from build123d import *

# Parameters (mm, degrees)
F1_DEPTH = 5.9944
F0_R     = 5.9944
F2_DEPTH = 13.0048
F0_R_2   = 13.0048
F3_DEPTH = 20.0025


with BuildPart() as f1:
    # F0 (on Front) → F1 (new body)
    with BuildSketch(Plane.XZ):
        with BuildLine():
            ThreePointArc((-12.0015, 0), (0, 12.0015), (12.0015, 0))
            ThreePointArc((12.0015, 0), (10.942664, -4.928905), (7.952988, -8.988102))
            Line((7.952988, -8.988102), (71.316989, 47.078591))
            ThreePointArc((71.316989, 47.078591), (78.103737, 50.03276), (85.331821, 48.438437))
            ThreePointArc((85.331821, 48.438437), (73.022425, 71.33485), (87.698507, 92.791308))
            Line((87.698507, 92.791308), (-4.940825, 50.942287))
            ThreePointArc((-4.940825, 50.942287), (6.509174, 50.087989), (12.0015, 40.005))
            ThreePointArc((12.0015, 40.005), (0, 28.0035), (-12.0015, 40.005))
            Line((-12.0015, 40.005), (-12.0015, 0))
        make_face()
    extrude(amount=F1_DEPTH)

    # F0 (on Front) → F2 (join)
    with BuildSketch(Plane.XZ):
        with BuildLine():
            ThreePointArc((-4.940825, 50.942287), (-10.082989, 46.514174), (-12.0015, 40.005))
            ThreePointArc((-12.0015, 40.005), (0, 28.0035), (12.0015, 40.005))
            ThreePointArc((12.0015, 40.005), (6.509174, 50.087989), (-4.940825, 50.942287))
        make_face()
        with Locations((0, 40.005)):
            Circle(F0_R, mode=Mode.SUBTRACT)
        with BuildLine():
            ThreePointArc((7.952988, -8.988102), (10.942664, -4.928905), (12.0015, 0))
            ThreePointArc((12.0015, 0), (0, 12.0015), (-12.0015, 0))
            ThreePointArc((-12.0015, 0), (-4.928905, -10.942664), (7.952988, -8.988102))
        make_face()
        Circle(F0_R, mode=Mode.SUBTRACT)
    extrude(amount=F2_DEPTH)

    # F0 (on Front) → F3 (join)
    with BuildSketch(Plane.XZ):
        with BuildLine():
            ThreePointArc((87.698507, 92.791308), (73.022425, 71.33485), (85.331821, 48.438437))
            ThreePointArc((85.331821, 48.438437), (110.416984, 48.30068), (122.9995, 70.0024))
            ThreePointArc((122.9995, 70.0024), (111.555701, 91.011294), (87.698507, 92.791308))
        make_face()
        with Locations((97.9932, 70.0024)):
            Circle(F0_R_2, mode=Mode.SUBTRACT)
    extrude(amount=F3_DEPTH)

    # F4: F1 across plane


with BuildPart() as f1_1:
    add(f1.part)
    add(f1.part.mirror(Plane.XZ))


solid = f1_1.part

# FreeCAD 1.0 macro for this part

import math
import FreeCAD as App
import Part
import Sketcher
from FreeCAD import Vector
Q = App.Units.Quantity

doc = App.newDocument("Part")
params = doc.addObject("Spreadsheet::Sheet", "Params")
for row, (alias, value) in enumerate([
    ("sketch1_radius", "0.4720001 in"),
    ("sketch1_height", "1.575 in"),
    ("pad1_length", "0.236 in"),
    ("sketch2_diameter", "0.472 in"),
    ("pad2_length", "0.512 in"),
    ("sketch3_diameter", "1.024 in"),
    ("pad3_length", "0.7875 in"),
], start=1):
    params.set(f"A{row}", alias)
    params.set(f"B{row}", "=" + value)
    params.setAlias(f"B{row}", alias)

body = doc.addObject("PartDesign::Body", "Body")

sketch1 = body.newObject("Sketcher::SketchObject", "Sketch")
sketch1.AttachmentSupport = (doc.getObject("XZ_Plane"), [""])
sketch1.MapMode = "FlatFace"
sketch1.addGeometry(Part.ArcOfCircle(Part.Circle(Vector(0, 0, 0), Vector(0, 0, 1), 12), math.radians(0), math.radians(180)), False)
sketch1.addGeometry(Part.ArcOfCircle(Part.Circle(Vector(0, 0, 0), Vector(0, 0, 1), 12), math.radians(-48), math.radians(0)), False)
sketch1.addGeometry(Part.LineSegment(Vector(8, -9, 0), Vector(71, 47, 0)), False)
sketch1.addGeometry(Part.ArcOfCircle(Part.Circle(Vector(79, 38, 0), Vector(0, 0, 1), 12), math.radians(60), math.radians(132)), False)
sketch1.addGeometry(Part.ArcOfCircle(Part.Circle(Vector(98, 70, 0), Vector(0, 0, 1), 25), math.radians(114), math.radians(240)), False)
sketch1.addGeometry(Part.LineSegment(Vector(88, 93, 0), Vector(-5, 51, 0)), False)
sketch1.addGeometry(Part.ArcOfCircle(Part.Circle(Vector(0, 40, 0), Vector(0, 0, 1), 12), math.radians(0), math.radians(114)), False)
sketch1.addGeometry(Part.ArcOfCircle(Part.Circle(Vector(0, 40, 0), Vector(0, 0, 1), 12), math.radians(180), math.radians(360)), False)
sketch1.addGeometry(Part.LineSegment(Vector(-12, 40, 0), Vector(-12, 0, 0)), False)
sketch1.addConstraint(Sketcher.Constraint("Tangent", 0, 1, 1, 2))
sketch1.addConstraint(Sketcher.Constraint("Tangent", 1, 1, 2, 1))
sketch1.addConstraint(Sketcher.Constraint("Tangent", 2, 2, 3, 2))
sketch1.addConstraint(Sketcher.Constraint("Tangent", 3, 1, 4, 2))
sketch1.addConstraint(Sketcher.Constraint("Tangent", 4, 1, 5, 1))
sketch1.addConstraint(Sketcher.Constraint("Tangent", 5, 2, 6, 2))
sketch1.addConstraint(Sketcher.Constraint("Tangent", 6, 1, 7, 2))
sketch1.addConstraint(Sketcher.Constraint("Tangent", 7, 1, 8, 1))
sketch1.addConstraint(Sketcher.Constraint("Tangent", 8, 2, 0, 2))
sketch1.addConstraint(Sketcher.Constraint("Vertical", 8))
sketch1.addConstraint(Sketcher.Constraint("Coincident", 0, 3, -1, 1))
sketch1.addConstraint(Sketcher.Constraint("Equal", 0, 1))
sketch1.addConstraint(Sketcher.Constraint("Equal", 1, 6))
sketch1.addConstraint(Sketcher.Constraint("Equal", 6, 7))
sketch1.addConstraint(Sketcher.Constraint("PointOnObject", 0, 1, -1))
sketch1.addConstraint(Sketcher.Constraint("Horizontal", 7, 3, 6, 1))
sketch1.addConstraint(Sketcher.Constraint("Radius", 3, Q("0.4720001 in")))
sketch1.addConstraint(Sketcher.Constraint("DistanceY", -1, 1, 3, 3, Q("1.4999999 in")))
sketch1.addConstraint(Sketcher.Constraint("Radius", 0, Q("0.4725 in")))
sketch1.addConstraint(Sketcher.Constraint("Radius", 4, Q("0.9845 in")))
sketch1.addConstraint(Sketcher.Constraint("DistanceY", 8, 2, 8, 1, Q("1.575 in")))
sketch1.addConstraint(Sketcher.Constraint("DistanceX", -1, 1, 4, 3, Q("3.858 in")))
sketch1.addConstraint(Sketcher.Constraint("DistanceY", -1, 1, 4, 3, Q("2.756 in")))
sketch1.setExpression("Constraints[16]", "Params.sketch1_radius")
sketch1.setExpression("Constraints[20]", "Params.sketch1_height")
pad1 = body.newObject("PartDesign::Pad", "Pad")
pad1.Profile = sketch1
pad1.setExpression("Length", "Params.pad1_length")

sketch2 = body.newObject("Sketcher::SketchObject", "Sketch001")
sketch2.AttachmentSupport = (doc.getObject("XZ_Plane"), [""])
sketch2.MapMode = "FlatFace"
sketch2.addGeometry(Part.ArcOfCircle(Part.Circle(Vector(0, 40, 0), Vector(0, 0, 1), 12), math.radians(114), math.radians(180)), False)
sketch2.addGeometry(Part.ArcOfCircle(Part.Circle(Vector(0, 40, 0), Vector(0, 0, 1), 12), math.radians(180), math.radians(360)), False)
sketch2.addGeometry(Part.ArcOfCircle(Part.Circle(Vector(0, 40, 0), Vector(0, 0, 1), 12), math.radians(0), math.radians(114)), False)
sketch2.addGeometry(Part.Circle(Vector(0, 40, 0), Vector(0, 0, 1), 6), False)
sketch2.addGeometry(Part.ArcOfCircle(Part.Circle(Vector(0, 0, 0), Vector(0, 0, 1), 12), math.radians(-48), math.radians(0)), False)
sketch2.addGeometry(Part.ArcOfCircle(Part.Circle(Vector(0, 0, 0), Vector(0, 0, 1), 12), math.radians(0), math.radians(180)), False)
sketch2.addGeometry(Part.ArcOfCircle(Part.Circle(Vector(0, 0, 0), Vector(0, 0, 1), 12), math.radians(-180), math.radians(-48)), False)
sketch2.addGeometry(Part.Circle(Vector(0, 0, 0), Vector(0, 0, 1), 6), False)
sketch2.addConstraint(Sketcher.Constraint("Tangent", 0, 2, 1, 1))
sketch2.addConstraint(Sketcher.Constraint("Tangent", 1, 2, 2, 1))
sketch2.addConstraint(Sketcher.Constraint("Tangent", 2, 2, 0, 1))
sketch2.addConstraint(Sketcher.Constraint("Tangent", 4, 2, 5, 1))
sketch2.addConstraint(Sketcher.Constraint("Tangent", 5, 2, 6, 1))
sketch2.addConstraint(Sketcher.Constraint("Tangent", 6, 2, 4, 1))
sketch2.addConstraint(Sketcher.Constraint("Coincident", 4, 3, -1, 1))
sketch2.addConstraint(Sketcher.Constraint("Coincident", 7, 3, -1, 1))
sketch2.addConstraint(Sketcher.Constraint("Coincident", 3, 3, 0, 3))
sketch2.addConstraint(Sketcher.Constraint("Equal", 2, 4))
sketch2.addConstraint(Sketcher.Constraint("Equal", 3, 7))
sketch2.addConstraint(Sketcher.Constraint("Symmetric", 0, 2, 1, 2, -2))
sketch2.addConstraint(Sketcher.Constraint("PointOnObject", 4, 2, -1))
sketch2.addConstraint(Sketcher.Constraint("PointOnObject", 5, 2, -1))
sketch2.addConstraint(Sketcher.Constraint("Horizontal", 3, 3, 0, 2))
sketch2.addConstraint(Sketcher.Constraint("Diameter", 3, Q("0.472 in")))
sketch2.addConstraint(Sketcher.Constraint("Radius", 0, Q("0.4724999 in")))
sketch2.addConstraint(Sketcher.Constraint("DistanceY", -1, 1, 0, 3, Q("1.5750001 in")))
sketch2.addConstraint(Sketcher.Constraint("DistanceY", 6, 2, -1, 1, 8.988102))
sketch2.addConstraint(Sketcher.Constraint("DistanceX", 2, 2, -1, 1, 4.940825))
sketch2.setExpression("Constraints[15]", "Params.sketch2_diameter")
pad2 = body.newObject("PartDesign::Pad", "Pad001")
pad2.Profile = sketch2
pad2.setExpression("Length", "Params.pad2_length")

sketch3 = body.newObject("Sketcher::SketchObject", "Sketch002")
sketch3.AttachmentSupport = (doc.getObject("XZ_Plane"), [""])
sketch3.MapMode = "FlatFace"
sketch3.addGeometry(Part.ArcOfCircle(Part.Circle(Vector(98, 70, 0), Vector(0, 0, 1), 25), math.radians(114), math.radians(240)), False)
sketch3.addGeometry(Part.ArcOfCircle(Part.Circle(Vector(98, 70, 0), Vector(0, 0, 1), 25), math.radians(-120), math.radians(0)), False)
sketch3.addGeometry(Part.ArcOfCircle(Part.Circle(Vector(98, 70, 0), Vector(0, 0, 1), 25), math.radians(0), math.radians(114)), False)
sketch3.addGeometry(Part.Circle(Vector(98, 70, 0), Vector(0, 0, 1), 13), False)
sketch3.addConstraint(Sketcher.Constraint("Tangent", 0, 2, 1, 1))
sketch3.addConstraint(Sketcher.Constraint("Tangent", 1, 2, 2, 1))
sketch3.addConstraint(Sketcher.Constraint("Tangent", 2, 2, 0, 1))
sketch3.addConstraint(Sketcher.Constraint("Coincident", 3, 3, 0, 3))
sketch3.addConstraint(Sketcher.Constraint("Horizontal", 3, 3, 1, 2))
sketch3.addConstraint(Sketcher.Constraint("Diameter", 3, Q("1.024 in")))
sketch3.addConstraint(Sketcher.Constraint("Radius", 0, Q("0.9845 in")))
sketch3.addConstraint(Sketcher.Constraint("DistanceX", -1, 1, 0, 3, Q("3.858 in")))
sketch3.addConstraint(Sketcher.Constraint("DistanceY", -1, 1, 0, 3, Q("2.756 in")))
sketch3.addConstraint(Sketcher.Constraint("DistanceX", -1, 1, 0, 2, 85.331821))
sketch3.addConstraint(Sketcher.Constraint("DistanceY", -1, 1, 2, 2, 92.791308))
sketch3.setExpression("Constraints[5]", "Params.sketch3_diameter")
pad3 = body.newObject("PartDesign::Pad", "Pad002")
pad3.Profile = sketch3
pad3.setExpression("Length", "Params.pad3_length")
body2 = doc.addObject("PartDesign::Body", "Body001")
doc.recompute()

body2.BaseFeature = body
doc.recompute()

mirroring = doc.addObject("Part::Mirroring", "Mirroring")
mirroring.Source = body
mirroring.Base = Vector(0, 0, 0)
mirroring.Normal = Vector(0, -1, 0)
body3 = doc.addObject("PartDesign::Body", "Body002")
body3.BaseFeature = mirroring
boolean = body2.newObject("PartDesign::Boolean", "Boolean")
boolean.Type = "Fuse"
boolean.addObjects([body3])
doc.recompute()
mirroring.Visibility = False

doc.recompute()
